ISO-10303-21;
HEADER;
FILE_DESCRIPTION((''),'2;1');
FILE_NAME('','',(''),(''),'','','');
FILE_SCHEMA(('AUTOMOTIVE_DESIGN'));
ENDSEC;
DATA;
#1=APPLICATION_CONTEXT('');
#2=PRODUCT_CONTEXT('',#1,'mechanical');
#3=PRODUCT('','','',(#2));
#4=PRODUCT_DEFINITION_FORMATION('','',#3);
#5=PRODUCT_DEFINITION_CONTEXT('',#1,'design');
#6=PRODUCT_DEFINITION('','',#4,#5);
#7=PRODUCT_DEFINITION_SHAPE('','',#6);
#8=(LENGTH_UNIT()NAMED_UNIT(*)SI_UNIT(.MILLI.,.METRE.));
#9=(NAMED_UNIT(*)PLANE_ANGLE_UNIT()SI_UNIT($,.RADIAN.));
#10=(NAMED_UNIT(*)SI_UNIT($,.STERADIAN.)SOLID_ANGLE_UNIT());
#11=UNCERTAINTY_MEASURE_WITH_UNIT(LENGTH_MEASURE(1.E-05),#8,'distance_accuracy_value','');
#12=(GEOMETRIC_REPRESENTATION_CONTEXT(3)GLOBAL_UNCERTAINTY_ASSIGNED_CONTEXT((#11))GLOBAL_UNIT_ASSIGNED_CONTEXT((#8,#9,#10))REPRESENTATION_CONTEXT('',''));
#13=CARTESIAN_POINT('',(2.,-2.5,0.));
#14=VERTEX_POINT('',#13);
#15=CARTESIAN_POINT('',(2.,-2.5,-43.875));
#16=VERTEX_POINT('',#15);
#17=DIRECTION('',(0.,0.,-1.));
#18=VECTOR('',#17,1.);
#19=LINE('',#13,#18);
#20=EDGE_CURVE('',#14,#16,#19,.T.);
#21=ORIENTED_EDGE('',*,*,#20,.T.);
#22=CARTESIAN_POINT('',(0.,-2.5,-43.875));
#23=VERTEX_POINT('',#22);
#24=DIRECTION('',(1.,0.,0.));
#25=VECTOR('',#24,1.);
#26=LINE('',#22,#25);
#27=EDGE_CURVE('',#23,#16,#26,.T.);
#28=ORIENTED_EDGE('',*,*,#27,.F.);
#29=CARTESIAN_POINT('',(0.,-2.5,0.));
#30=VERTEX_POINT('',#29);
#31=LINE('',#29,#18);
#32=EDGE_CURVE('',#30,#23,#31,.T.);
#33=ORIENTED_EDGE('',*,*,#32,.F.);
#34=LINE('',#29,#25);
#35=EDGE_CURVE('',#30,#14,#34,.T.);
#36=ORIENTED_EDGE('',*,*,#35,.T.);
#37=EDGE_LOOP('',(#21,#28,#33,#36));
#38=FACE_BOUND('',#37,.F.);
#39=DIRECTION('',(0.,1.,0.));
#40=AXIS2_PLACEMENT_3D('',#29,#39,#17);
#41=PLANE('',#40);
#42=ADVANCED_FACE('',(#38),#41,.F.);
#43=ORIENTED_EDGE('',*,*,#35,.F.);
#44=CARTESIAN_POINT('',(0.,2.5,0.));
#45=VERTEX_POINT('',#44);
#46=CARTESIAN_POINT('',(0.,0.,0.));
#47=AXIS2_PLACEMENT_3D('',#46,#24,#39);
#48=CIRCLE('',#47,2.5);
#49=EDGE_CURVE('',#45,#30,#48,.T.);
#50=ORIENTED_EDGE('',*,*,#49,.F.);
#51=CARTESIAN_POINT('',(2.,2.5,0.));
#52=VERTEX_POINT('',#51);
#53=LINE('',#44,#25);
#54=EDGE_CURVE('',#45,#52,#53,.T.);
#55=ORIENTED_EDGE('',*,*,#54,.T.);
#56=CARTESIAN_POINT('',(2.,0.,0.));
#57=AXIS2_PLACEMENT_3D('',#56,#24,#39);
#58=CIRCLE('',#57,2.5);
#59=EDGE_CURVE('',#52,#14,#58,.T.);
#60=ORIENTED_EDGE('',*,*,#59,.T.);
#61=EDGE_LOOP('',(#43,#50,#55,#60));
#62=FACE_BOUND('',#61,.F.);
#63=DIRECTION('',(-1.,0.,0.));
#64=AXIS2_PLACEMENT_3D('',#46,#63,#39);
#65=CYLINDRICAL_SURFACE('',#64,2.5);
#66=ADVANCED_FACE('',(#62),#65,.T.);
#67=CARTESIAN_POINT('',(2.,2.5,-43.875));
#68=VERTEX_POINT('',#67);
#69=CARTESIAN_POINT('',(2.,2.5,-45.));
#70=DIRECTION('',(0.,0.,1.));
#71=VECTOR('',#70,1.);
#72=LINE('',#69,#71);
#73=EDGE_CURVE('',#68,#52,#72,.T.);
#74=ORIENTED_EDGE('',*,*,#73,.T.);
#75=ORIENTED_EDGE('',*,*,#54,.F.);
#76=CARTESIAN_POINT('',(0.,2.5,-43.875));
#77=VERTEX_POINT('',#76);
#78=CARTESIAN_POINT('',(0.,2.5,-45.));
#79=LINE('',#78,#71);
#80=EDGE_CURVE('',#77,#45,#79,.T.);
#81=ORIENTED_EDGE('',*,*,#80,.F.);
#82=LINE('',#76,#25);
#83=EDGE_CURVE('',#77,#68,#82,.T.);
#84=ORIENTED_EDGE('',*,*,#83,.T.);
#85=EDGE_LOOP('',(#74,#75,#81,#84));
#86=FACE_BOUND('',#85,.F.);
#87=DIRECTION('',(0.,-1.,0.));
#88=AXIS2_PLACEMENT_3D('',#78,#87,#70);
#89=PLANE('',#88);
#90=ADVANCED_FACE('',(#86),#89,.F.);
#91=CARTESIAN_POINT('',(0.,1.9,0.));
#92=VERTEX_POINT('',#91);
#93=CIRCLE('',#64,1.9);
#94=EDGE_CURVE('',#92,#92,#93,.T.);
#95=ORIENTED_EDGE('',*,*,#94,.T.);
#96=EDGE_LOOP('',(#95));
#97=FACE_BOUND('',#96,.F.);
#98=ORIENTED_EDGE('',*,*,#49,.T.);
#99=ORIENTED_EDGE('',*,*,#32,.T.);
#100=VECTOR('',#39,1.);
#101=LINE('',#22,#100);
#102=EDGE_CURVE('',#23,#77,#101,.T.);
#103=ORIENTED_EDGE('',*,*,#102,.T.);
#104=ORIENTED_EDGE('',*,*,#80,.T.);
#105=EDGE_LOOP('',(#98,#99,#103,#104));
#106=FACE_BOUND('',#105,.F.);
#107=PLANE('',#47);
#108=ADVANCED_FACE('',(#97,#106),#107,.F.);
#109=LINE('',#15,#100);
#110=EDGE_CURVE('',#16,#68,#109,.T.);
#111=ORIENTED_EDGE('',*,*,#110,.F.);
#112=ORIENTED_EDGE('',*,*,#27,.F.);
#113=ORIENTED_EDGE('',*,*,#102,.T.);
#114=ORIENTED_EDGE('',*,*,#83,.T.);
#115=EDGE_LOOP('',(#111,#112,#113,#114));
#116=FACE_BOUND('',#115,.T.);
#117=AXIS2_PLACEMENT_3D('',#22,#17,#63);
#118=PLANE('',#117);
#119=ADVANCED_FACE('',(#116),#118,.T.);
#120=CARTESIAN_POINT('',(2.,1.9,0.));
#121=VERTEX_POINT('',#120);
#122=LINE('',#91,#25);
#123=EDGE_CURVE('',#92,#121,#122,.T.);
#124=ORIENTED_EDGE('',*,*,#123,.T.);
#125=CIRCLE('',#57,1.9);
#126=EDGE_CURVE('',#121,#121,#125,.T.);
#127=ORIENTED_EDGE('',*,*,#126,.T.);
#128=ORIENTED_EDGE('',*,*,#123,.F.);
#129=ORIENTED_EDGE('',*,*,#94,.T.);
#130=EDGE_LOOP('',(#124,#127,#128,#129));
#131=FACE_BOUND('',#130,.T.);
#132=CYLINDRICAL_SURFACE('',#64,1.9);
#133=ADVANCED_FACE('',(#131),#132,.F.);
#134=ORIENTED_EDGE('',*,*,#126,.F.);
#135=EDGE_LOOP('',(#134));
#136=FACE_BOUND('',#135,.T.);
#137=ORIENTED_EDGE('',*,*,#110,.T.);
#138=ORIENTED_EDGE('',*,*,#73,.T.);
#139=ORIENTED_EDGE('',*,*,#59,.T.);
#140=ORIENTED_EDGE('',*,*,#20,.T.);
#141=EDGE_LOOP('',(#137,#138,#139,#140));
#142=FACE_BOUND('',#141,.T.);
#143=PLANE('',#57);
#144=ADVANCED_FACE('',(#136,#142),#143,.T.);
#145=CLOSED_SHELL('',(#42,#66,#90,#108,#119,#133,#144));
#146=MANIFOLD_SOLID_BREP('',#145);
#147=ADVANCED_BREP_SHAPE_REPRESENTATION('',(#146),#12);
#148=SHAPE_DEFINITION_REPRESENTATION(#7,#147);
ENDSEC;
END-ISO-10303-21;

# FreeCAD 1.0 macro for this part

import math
import FreeCAD as App
import Part
import Sketcher
from FreeCAD import Vector

doc = App.newDocument("Part")
body = doc.addObject("PartDesign::Body", "Body")

sketch1 = body.newObject("Sketcher::SketchObject", "Sketch")
sketch1.AttachmentSupport = (doc.getObject("YZ_Plane"), [""])
sketch1.MapMode = "FlatFace"
sketch1.addGeometry([
    Part.ArcOfCircle(Part.Circle(Vector(0, 0, 0), Vector(0, 0, 1), 2.5), math.radians(0), math.radians(180)),
    Part.LineSegment(Vector(-2.5, 0, 0), Vector(-2.5, -45, 0)),
    Part.LineSegment(Vector(-2.5, -45, 0), Vector(2.5, -45, 0)),
    Part.LineSegment(Vector(2.5, -45, 0), Vector(2.5, 0, 0)),
    Part.Circle(Vector(0, 0, 0), Vector(0, 0, 1), 1.9),
], False)
sketch1.addConstraint([
    Sketcher.Constraint("Tangent", 0, 2, 1, 1),
    Sketcher.Constraint("Coincident", 1, 2, 2, 1),
    Sketcher.Constraint("Coincident", 2, 2, 3, 1),
    Sketcher.Constraint("Tangent", 3, 2, 0, 1),
    Sketcher.Constraint("Vertical", 1),
    Sketcher.Constraint("Horizontal", 2),
    Sketcher.Constraint("Vertical", 3),
    Sketcher.Constraint("Coincident", 0, 3, -1, 1),
    Sketcher.Constraint("Coincident", 4, 3, -1, 1),
    Sketcher.Constraint("Diameter", 4, 3.8),
    Sketcher.Constraint("Radius", 0, 2.5),
    Sketcher.Constraint("DistanceY", 1, 2, 1, 1, 45.0),
])
pad1 = body.newObject("PartDesign::Pad", "Pad")
pad1.Profile = sketch1
pad1.Length = 2

sketch2 = body.newObject("Sketcher::SketchObject", "Sketch001")
sketch2.AttachmentSupport = (doc.getObject("XY_Plane"), [""])
sketch2.MapMode = "FlatFace"
sketch2.AttachmentOffset = App.Placement(Vector(0, 0, -45), App.Rotation())
sketch2.addGeometry([
    Part.LineSegment(Vector(2, -2.5, 0), Vector(0, -2.5, 0)),
    Part.LineSegment(Vector(0, -2.5, 0), Vector(0, 2.5, 0)),
    Part.LineSegment(Vector(0, 2.5, 0), Vector(2, 2.5, 0)),
    Part.LineSegment(Vector(2, 2.5, 0), Vector(2, -2.5, 0)),
], False)
sketch2.addConstraint([
    Sketcher.Constraint("Coincident", 0, 2, 1, 1),
    Sketcher.Constraint("Coincident", 1, 2, 2, 1),
    Sketcher.Constraint("Coincident", 2, 2, 3, 1),
    Sketcher.Constraint("Coincident", 3, 2, 0, 1),
    Sketcher.Constraint("Horizontal", 0),
    Sketcher.Constraint("Vertical", 1),
    Sketcher.Constraint("Horizontal", 2),
    Sketcher.Constraint("Vertical", 3),
    Sketcher.Constraint("Symmetric", 0, 2, 1, 2, -1, 1),
    Sketcher.Constraint("DistanceX", 0, 2, 0, 1, 2.0),
    Sketcher.Constraint("DistanceY", 1, 1, 1, 2, 5.0),
])
pocket1 = body.newObject("PartDesign::Pocket", "Pocket")
pocket1.Profile = sketch2
pocket1.Length = 1.125
pocket1.Reversed = True

doc.recompute()
